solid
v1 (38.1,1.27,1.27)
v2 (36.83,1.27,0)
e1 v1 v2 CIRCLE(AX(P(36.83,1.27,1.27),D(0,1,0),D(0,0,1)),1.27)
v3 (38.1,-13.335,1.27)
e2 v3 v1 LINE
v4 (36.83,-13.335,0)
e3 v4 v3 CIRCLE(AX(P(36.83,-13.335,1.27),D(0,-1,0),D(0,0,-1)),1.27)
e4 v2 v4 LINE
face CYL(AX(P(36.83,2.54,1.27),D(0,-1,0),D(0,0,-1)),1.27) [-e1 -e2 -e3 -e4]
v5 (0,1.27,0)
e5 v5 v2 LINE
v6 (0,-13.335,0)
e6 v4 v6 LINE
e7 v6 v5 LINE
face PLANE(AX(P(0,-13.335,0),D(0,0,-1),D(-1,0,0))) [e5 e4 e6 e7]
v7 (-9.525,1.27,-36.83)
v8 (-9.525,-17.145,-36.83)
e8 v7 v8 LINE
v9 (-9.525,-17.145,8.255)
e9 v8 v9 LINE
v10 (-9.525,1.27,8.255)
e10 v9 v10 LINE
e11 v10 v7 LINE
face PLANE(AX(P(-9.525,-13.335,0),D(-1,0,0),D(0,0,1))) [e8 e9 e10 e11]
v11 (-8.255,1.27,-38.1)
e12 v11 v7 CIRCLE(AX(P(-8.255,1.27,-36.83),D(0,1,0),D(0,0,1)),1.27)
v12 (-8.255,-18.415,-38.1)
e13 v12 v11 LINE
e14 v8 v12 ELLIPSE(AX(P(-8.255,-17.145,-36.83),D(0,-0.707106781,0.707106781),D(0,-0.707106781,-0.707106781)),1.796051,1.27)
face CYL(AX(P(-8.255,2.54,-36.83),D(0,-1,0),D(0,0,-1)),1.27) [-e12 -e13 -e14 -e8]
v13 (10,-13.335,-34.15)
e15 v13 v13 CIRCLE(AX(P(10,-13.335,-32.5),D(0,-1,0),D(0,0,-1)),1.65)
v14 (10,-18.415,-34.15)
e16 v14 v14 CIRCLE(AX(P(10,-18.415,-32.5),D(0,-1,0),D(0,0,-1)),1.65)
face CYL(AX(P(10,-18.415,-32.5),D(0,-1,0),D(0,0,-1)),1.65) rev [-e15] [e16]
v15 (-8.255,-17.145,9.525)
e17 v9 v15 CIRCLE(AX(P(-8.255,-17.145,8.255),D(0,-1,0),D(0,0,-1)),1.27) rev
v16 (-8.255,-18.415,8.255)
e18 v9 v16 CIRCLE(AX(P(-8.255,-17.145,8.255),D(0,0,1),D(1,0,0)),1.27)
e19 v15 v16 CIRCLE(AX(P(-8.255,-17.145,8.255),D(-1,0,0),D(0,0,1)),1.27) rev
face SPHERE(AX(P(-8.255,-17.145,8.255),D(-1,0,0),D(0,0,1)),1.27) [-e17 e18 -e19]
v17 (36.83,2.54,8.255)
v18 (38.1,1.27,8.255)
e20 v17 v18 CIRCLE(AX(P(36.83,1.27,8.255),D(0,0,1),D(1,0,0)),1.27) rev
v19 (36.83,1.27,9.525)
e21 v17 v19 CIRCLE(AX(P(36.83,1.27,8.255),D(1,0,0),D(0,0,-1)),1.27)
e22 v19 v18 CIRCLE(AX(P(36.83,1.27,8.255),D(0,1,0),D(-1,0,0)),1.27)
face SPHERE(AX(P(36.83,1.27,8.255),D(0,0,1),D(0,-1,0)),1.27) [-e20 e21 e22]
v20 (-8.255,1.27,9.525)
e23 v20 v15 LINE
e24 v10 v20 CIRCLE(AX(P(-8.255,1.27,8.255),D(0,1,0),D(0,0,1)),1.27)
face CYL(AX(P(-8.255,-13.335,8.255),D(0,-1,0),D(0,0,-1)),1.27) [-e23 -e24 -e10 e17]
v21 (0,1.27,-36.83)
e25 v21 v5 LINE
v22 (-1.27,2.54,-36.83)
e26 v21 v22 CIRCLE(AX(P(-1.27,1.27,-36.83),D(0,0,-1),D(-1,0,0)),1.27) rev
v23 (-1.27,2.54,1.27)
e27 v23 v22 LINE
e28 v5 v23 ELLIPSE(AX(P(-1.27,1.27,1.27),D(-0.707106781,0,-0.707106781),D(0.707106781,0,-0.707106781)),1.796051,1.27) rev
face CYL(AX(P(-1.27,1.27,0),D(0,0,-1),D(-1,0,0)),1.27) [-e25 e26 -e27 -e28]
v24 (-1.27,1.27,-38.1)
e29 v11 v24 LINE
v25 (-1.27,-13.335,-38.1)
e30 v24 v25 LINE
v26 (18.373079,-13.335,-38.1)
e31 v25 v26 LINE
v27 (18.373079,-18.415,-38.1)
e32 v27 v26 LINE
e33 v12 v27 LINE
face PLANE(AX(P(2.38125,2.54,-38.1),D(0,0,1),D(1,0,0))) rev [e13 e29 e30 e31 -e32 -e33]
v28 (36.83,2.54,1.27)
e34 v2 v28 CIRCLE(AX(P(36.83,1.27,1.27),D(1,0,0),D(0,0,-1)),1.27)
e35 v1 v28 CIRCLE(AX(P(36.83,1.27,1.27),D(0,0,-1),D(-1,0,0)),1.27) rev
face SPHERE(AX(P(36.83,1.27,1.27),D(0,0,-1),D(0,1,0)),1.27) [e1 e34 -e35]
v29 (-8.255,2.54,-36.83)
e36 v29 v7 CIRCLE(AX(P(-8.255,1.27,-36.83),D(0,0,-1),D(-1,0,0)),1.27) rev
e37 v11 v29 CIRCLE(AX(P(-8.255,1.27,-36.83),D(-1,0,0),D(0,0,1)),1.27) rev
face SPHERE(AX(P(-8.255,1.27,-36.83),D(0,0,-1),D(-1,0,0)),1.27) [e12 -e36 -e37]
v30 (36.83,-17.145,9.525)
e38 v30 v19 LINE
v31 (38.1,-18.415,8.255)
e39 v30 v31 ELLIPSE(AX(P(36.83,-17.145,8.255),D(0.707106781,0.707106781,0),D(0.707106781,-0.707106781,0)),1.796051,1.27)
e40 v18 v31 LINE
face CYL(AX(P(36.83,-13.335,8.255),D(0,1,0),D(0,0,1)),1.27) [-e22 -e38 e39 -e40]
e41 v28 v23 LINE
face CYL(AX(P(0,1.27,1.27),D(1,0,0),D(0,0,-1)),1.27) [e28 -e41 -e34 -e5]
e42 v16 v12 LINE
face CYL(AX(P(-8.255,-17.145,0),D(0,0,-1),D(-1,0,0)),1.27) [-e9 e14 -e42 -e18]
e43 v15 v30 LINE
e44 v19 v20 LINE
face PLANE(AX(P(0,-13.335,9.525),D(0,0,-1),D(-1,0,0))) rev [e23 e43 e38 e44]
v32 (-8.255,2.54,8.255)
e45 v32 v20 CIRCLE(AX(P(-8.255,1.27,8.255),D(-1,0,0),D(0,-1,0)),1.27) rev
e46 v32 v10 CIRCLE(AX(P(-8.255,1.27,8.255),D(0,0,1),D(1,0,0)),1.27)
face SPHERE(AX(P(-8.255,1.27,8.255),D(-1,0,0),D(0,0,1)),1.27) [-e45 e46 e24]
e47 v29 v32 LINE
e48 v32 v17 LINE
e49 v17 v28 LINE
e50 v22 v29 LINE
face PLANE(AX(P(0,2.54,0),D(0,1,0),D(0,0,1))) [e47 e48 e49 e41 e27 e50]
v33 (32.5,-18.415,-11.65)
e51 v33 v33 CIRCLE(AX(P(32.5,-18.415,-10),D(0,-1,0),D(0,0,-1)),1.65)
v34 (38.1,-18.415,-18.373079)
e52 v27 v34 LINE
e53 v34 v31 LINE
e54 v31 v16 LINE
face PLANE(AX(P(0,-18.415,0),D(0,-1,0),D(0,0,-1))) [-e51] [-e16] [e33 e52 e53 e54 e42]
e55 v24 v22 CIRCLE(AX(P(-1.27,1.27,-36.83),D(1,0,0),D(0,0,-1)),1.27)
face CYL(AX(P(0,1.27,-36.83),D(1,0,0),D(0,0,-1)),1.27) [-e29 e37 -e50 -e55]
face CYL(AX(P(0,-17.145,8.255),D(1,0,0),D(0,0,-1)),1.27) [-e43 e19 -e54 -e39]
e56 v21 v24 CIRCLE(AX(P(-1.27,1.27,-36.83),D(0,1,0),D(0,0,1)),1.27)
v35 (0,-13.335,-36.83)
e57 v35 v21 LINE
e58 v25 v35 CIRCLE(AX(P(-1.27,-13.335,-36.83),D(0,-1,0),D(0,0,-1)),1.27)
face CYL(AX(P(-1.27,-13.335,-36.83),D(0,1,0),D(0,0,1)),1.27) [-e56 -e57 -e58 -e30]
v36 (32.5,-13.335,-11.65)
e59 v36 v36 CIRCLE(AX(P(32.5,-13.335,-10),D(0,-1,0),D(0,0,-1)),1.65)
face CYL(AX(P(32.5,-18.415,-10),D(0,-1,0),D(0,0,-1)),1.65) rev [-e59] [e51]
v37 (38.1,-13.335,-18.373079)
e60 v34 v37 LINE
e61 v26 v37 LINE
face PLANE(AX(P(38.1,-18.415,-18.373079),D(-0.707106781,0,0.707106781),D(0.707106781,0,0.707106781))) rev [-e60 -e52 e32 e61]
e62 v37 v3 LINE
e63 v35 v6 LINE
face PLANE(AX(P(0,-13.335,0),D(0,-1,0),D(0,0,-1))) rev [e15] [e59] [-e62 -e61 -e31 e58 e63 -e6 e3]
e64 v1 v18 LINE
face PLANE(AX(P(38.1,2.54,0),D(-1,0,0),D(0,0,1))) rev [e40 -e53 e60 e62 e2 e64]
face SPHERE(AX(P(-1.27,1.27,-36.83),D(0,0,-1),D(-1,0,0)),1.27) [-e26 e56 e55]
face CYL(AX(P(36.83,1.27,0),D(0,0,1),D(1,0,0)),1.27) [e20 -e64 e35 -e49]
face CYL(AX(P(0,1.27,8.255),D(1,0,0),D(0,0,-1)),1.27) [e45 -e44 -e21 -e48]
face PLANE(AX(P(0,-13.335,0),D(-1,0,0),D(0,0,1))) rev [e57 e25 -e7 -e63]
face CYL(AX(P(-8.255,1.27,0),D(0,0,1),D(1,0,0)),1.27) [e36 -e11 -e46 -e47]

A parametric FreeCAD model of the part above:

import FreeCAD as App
import Part
import Sketcher
Q = App.Units.Quantity


def edges_at(feature, points):
    """Names of the edges that pass closest to the given points."""
    edges = feature.Shape.Edges
    near = lambda p: min(range(len(edges)), key=lambda i: edges[i].distToShape(Part.Vertex(*p))[0])
    return sorted({f"Edge{near(p) + 1}" for p in points})

doc = App.newDocument("Part")
params = doc.addObject("Spreadsheet::Sheet", "Params")
for row, (alias, value) in enumerate([
    ("sketch1_width", "1.5 in"),
    ("sketch1_width2", "1.40625 in"),
    ("pad1_length", "0.1 in"),
    ("sketch2_width", "1.5 in"),
    ("sketch2_width2", "1.875 in"),
    ("pad2_length", "0.625 in"),
    ("sketch3_width", "1.875 in"),
    ("pad3_length", "0.2 in"),
    ("hole_diameter", "3.3 mm"),
    ("hole_depth", "0.5 in"),
    ("sketch5_width", "1.5 in"),
    ("sketch5_width2", "1.40625 in"),
    ("pocket1_length", "0.1 in"),
    ("fillet_radius", "0.05 in"),
], start=1):
    params.set(f"A{row}", alias)
    params.set(f"B{row}", "=" + value)
    params.setAlias(f"B{row}", alias)

body = doc.addObject("PartDesign::Body", "Body")

# Sketch on XZ plane
sketch1 = body.newObject("Sketcher::SketchObject", "Sketch")
sketch1.AttachmentSupport = (doc.getObject("XZ_Plane"), [""])
sketch1.MapMode = "FlatFace"
sketch1.addGeometry([
    Part.LineSegment(App.Vector(0, 0, 0), App.Vector(38.1, 0, 0)),  # 0
    Part.LineSegment(App.Vector(38.1, 0, 0), App.Vector(38.1, -2.38125, 0)),  # 1
    Part.LineSegment(App.Vector(38.1, -2.38125, 0), App.Vector(2.38125, -2.38125, 0)),  # 2
    Part.LineSegment(App.Vector(2.38125, -2.38125, 0), App.Vector(2.38125, -38.1, 0)),  # 3
    Part.LineSegment(App.Vector(2.38125, -38.1, 0), App.Vector(0, -38.1, 0)),  # 4
    Part.LineSegment(App.Vector(0, -38.1, 0), App.Vector(0, 0, 0)),  # 5
], False)
sketch1.addConstraint([
    Sketcher.Constraint("Coincident", 0, 2, 1, 1),
    Sketcher.Constraint("Coincident", 1, 2, 2, 1),
    Sketcher.Constraint("Coincident", 2, 2, 3, 1),
    Sketcher.Constraint("Coincident", 3, 2, 4, 1),
    Sketcher.Constraint("Coincident", 4, 2, 5, 1),
    Sketcher.Constraint("Coincident", 5, 2, 0, 1),
    Sketcher.Constraint("Horizontal", 0),
    Sketcher.Constraint("Vertical", 1),
    Sketcher.Constraint("Horizontal", 2),
    Sketcher.Constraint("Vertical", 3),
    Sketcher.Constraint("Horizontal", 4),
    Sketcher.Constraint("Vertical", 5),
    Sketcher.Constraint("Coincident", 5, 2, -1, 1),
    Sketcher.Constraint("Equal", 4, 1),
    Sketcher.Constraint("Equal", 2, 3),
    Sketcher.Constraint("DistanceX", 0, 1, 0, 2, Q("1.5 in")),
    Sketcher.Constraint("DistanceX", 2, 2, 2, 1, Q("1.40625 in")),
])
sketch1.setExpression("Constraints[15]", "Params.sketch1_width")
sketch1.setExpression("Constraints[16]", "Params.sketch1_width2")
pad1 = body.newObject("PartDesign::Pad", "Pad")
pad1.Profile = sketch1
pad1.setExpression("Length", "Params.pad1_length")
pad1.Reversed = True

# Sketch on XZ plane
sketch2 = body.newObject("Sketcher::SketchObject", "Sketch001")
sketch2.AttachmentSupport = (doc.getObject("XZ_Plane"), [""])
sketch2.MapMode = "FlatFace"
sketch2.AttachmentOffset = App.Placement(App.Vector(0, 0, -0.1 * 25.4), App.Rotation())
sketch2.addGeometry([
    Part.LineSegment(App.Vector(-9.525, -38.1, 0), App.Vector(-9.525, 9.525, 0)),  # 0
    Part.LineSegment(App.Vector(-9.525, 9.525, 0), App.Vector(38.1, 9.525, 0)),  # 1
    Part.LineSegment(App.Vector(38.1, 9.525, 0), App.Vector(38.1, 0, 0)),  # 2
    Part.LineSegment(App.Vector(38.1, 0, 0), App.Vector(0, 0, 0)),  # 3
    Part.LineSegment(App.Vector(0, 0, 0), App.Vector(0, -38.1, 0)),  # 4
    Part.LineSegment(App.Vector(0, -38.1, 0), App.Vector(-9.525, -38.1, 0)),  # 5
], False)
sketch2.addConstraint([
    Sketcher.Constraint("Coincident", 0, 2, 1, 1),
    Sketcher.Constraint("Coincident", 1, 2, 2, 1),
    Sketcher.Constraint("Coincident", 2, 2, 3, 1),
    Sketcher.Constraint("Coincident", 3, 2, 4, 1),
    Sketcher.Constraint("Coincident", 4, 2, 5, 1),
    Sketcher.Constraint("Coincident", 5, 2, 0, 1),
    Sketcher.Constraint("Vertical", 0),
    Sketcher.Constraint("Horizontal", 1),
    Sketcher.Constraint("Vertical", 2),
    Sketcher.Constraint("Horizontal", 3),
    Sketcher.Constraint("Vertical", 4),
    Sketcher.Constraint("Horizontal", 5),
    Sketcher.Constraint("Coincident", 3, 2, -1, 1),
    Sketcher.Constraint("Equal", 1, 0),
    Sketcher.Constraint("Equal", 5, 2),
    Sketcher.Constraint("DistanceX", 3, 2, 3, 1, Q("1.5 in")),
    Sketcher.Constraint("DistanceX", 1, 1, 1, 2, Q("1.875 in")),
])
sketch2.setExpression("Constraints[15]", "Params.sketch2_width")
sketch2.setExpression("Constraints[16]", "Params.sketch2_width2")
pad2 = body.newObject("PartDesign::Pad", "Pad001")
pad2.Profile = sketch2
pad2.setExpression("Length", "Params.pad2_length")

# Sketch on XZ plane
sketch3 = body.newObject("Sketcher::SketchObject", "Sketch002")
sketch3.AttachmentSupport = (doc.getObject("XZ_Plane"), [""])
sketch3.MapMode = "FlatFace"
sketch3.AttachmentOffset = App.Placement(App.Vector(0, 0, 0.525 * 25.4), App.Rotation())
sketch3.addGeometry([
    Part.LineSegment(App.Vector(38.1, 9.525, 0), App.Vector(-9.525, 9.525, 0)),  # 0
    Part.LineSegment(App.Vector(-9.525, 9.525, 0), App.Vector(-9.525, -38.1, 0)),  # 1
    Part.LineSegment(App.Vector(-9.525, -38.1, 0), App.Vector(18.373079, -38.1, 0)),  # 2
    Part.LineSegment(App.Vector(18.373079, -38.1, 0), App.Vector(38.1, -18.373079, 0)),  # 3
    Part.LineSegment(App.Vector(38.1, -18.373079, 0), App.Vector(38.1, 9.525, 0)),  # 4
], False)
sketch3.addConstraint([
    Sketcher.Constraint("Coincident", 0, 2, 1, 1),
    Sketcher.Constraint("Coincident", 1, 2, 2, 1),
    Sketcher.Constraint("Coincident", 2, 2, 3, 1),
    Sketcher.Constraint("Coincident", 3, 2, 4, 1),
    Sketcher.Constraint("Coincident", 4, 2, 0, 1),
    Sketcher.Constraint("Horizontal", 0),
    Sketcher.Constraint("Vertical", 1),
    Sketcher.Constraint("Horizontal", 2),
    Sketcher.Constraint("Vertical", 4),
    Sketcher.Constraint("Equal", 0, 1),
    Sketcher.Constraint("Equal", 2, 4),
    Sketcher.Constraint("DistanceY", 1, 2, -1, 1, Q("1.5 in")),
    Sketcher.Constraint("DistanceX", -1, 1, 3, 2, Q("1.5 in")),
    Sketcher.Constraint("DistanceX", 0, 2, 0, 1, Q("1.875 in")),
    Sketcher.Constraint("DistanceX", 2, 1, 2, 2, Q("27.898079 mm")),
])
sketch3.setExpression("Constraints[13]", "Params.sketch3_width")
pad3 = body.newObject("PartDesign::Pad", "Pad002")
pad3.Profile = sketch3
pad3.setExpression("Length", "Params.pad3_length")

# Sketch on XZ plane
sketch4 = body.newObject("Sketcher::SketchObject", "Sketch003")
sketch4.AttachmentSupport = (doc.getObject("XZ_Plane"), [""])
sketch4.MapMode = "FlatFace"
sketch4.AttachmentOffset = App.Placement(App.Vector(0, 0, 0.725 * 25.4), App.Rotation())
sketch4.addGeometry([
    Part.Circle(App.Vector(10, -32.5, 0), App.Vector(0, 0, 1), 1.65),
    Part.Circle(App.Vector(32.5, -10, 0), App.Vector(0, 0, 1), 1.65),
], False)
sketch4.addConstraint([
    Sketcher.Constraint("Equal", 0, 1),
    Sketcher.Constraint("Diameter", 0, Q("3.3 mm")),
    Sketcher.Constraint("DistanceX", -1, 1, 0, 3, Q("10 mm")),
    Sketcher.Constraint("DistanceY", 0, 3, -1, 1, Q("32.5 mm")),
    Sketcher.Constraint("DistanceX", -1, 1, 1, 3, Q("32.5 mm")),
    Sketcher.Constraint("DistanceY", 1, 3, -1, 1, Q("10 mm")),
])
doc.recompute()
hole = body.newObject("PartDesign::Hole", "Hole")
hole.Profile = sketch4
hole.ThreadType = "None"
hole.setExpression("Diameter", "Params.hole_diameter")
hole.DepthType = "Dimension"
hole.setExpression("Depth", "Params.hole_depth")
hole.DrillPoint = "Angled"
hole.DrillPointAngle = 118

# Sketch on XZ plane
sketch5 = body.newObject("Sketcher::SketchObject", "Sketch004")
sketch5.AttachmentSupport = (doc.getObject("XZ_Plane"), [""])
sketch5.MapMode = "FlatFace"
sketch5.AttachmentOffset = App.Placement(App.Vector(0, 0, -0.1 * 25.4), App.Rotation())
sketch5.addGeometry([
    Part.LineSegment(App.Vector(38.1, 0, 0), App.Vector(38.1, -2.38125, 0)),  # 0
    Part.LineSegment(App.Vector(38.1, -2.38125, 0), App.Vector(2.38125, -2.38125, 0)),  # 1
    Part.LineSegment(App.Vector(2.38125, -2.38125, 0), App.Vector(2.38125, -38.1, 0)),  # 2
    Part.LineSegment(App.Vector(2.38125, -38.1, 0), App.Vector(0, -38.1, 0)),  # 3
    Part.LineSegment(App.Vector(0, -38.1, 0), App.Vector(0, 0, 0)),  # 4
    Part.LineSegment(App.Vector(0, 0, 0), App.Vector(38.1, 0, 0)),  # 5
], False)
sketch5.addConstraint([
    Sketcher.Constraint("Coincident", 0, 2, 1, 1),
    Sketcher.Constraint("Coincident", 1, 2, 2, 1),
    Sketcher.Constraint("Coincident", 2, 2, 3, 1),
    Sketcher.Constraint("Coincident", 3, 2, 4, 1),
    Sketcher.Constraint("Coincident", 4, 2, 5, 1),
    Sketcher.Constraint("Coincident", 5, 2, 0, 1),
    Sketcher.Constraint("Vertical", 0),
    Sketcher.Constraint("Horizontal", 1),
    Sketcher.Constraint("Vertical", 2),
    Sketcher.Constraint("Horizontal", 3),
    Sketcher.Constraint("Vertical", 4),
    Sketcher.Constraint("Horizontal", 5),
    Sketcher.Constraint("Coincident", 4, 2, -1, 1),
    Sketcher.Constraint("Equal", 3, 0),
    Sketcher.Constraint("Equal", 1, 2),
    Sketcher.Constraint("DistanceX", 5, 1, 5, 2, Q("1.5 in")),
    Sketcher.Constraint("DistanceX", 1, 2, 1, 1, Q("1.40625 in")),
])
sketch5.setExpression("Constraints[15]", "Params.sketch5_width")
sketch5.setExpression("Constraints[16]", "Params.sketch5_width2")
pocket1 = body.newObject("PartDesign::Pocket", "Pocket")
pocket1.Profile = sketch5
pocket1.setExpression("Length", "Params.pocket1_length")
pocket1.Reversed = True
doc.recompute()

fillet = body.newObject("PartDesign::Fillet", "Fillet")
fillet.Base = (pocket1, edges_at(pocket1, [
    (38.1, 2.54, 4.763),
    (0, -5.397, -38.1),
    (-9.525, -7.938, -38.1),
    (38.1, -5.397, 0),
    (14.287, 2.54, 9.525),
    (38.1, -7.938, 9.525),
    (-9.525, -7.938, 9.525),
    (-9.525, 2.54, -14.287),
    (-9.525, -18.415, -14.287),
    (14.287, -18.415, 9.525),
    (-4.763, 2.54, -38.1),
    (0, 2.54, -19.05),
    (19.05, 2.54, 0),
]))
fillet.setExpression("Radius", "Params.fillet_radius")

doc.recompute()
